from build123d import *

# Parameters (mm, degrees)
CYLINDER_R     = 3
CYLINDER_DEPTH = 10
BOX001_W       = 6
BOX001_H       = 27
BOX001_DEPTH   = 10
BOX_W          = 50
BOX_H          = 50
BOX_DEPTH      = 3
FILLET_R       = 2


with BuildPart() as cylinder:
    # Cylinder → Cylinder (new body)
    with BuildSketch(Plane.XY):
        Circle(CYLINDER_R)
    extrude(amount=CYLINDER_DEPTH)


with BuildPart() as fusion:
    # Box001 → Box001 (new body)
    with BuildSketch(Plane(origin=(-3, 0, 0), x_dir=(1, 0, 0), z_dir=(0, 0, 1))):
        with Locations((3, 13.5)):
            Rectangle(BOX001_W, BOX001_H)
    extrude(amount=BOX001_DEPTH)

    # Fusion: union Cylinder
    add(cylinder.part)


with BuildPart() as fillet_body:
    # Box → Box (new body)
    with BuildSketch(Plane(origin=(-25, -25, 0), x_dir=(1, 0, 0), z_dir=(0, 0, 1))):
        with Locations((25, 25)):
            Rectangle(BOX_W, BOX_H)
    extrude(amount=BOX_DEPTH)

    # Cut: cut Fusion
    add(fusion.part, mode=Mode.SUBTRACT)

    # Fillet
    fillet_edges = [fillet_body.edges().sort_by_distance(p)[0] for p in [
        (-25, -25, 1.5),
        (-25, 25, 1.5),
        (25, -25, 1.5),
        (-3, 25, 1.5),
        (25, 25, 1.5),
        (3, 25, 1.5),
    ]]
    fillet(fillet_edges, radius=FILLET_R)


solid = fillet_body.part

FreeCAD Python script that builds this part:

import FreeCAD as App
import Part
import Sketcher
Q = App.Units.Quantity


def edges_at(feature, points):
    """Names of the edges that pass closest to the given points."""
    edges = feature.Shape.Edges
    near = lambda p: min(range(len(edges)), key=lambda i: edges[i].distToShape(Part.Vertex(*p))[0])
    return sorted({f"Edge{near(p) + 1}" for p in points})

doc = App.newDocument("Part")
body = doc.addObject("PartDesign::Body", "Body")

sketch1 = body.newObject("Sketcher::SketchObject", "Sketch")
sketch1.AttachmentSupport = (doc.getObject("XY_Plane"), [""])
sketch1.MapMode = "FlatFace"
sketch1.addGeometry(Part.Circle(App.Vector(0, 0, 0), App.Vector(0, 0, 1), 3), False)
sketch1.addConstraint(Sketcher.Constraint("Coincident", 0, 3, -1, 1))
sketch1.addConstraint(Sketcher.Constraint("Diameter", 0, Q("6 mm")))
pad1 = body.newObject("PartDesign::Pad", "Pad")
pad1.Profile = sketch1
pad1.Length = 10
body2 = doc.addObject("PartDesign::Body", "Body001")

sketch2 = body2.newObject("Sketcher::SketchObject", "Sketch001")
sketch2.AttachmentSupport = (doc.getObject("XY_Plane001"), [""])
sketch2.MapMode = "FlatFace"
sketch2.addGeometry(Part.LineSegment(App.Vector(-3, 27, 0), App.Vector(-3, 0, 0)), False)
sketch2.addGeometry(Part.LineSegment(App.Vector(-3, 0, 0), App.Vector(3, 0, 0)), False)
sketch2.addGeometry(Part.LineSegment(App.Vector(3, 0, 0), App.Vector(3, 27, 0)), False)
sketch2.addGeometry(Part.LineSegment(App.Vector(3, 27, 0), App.Vector(-3, 27, 0)), False)
sketch2.addConstraint(Sketcher.Constraint("Coincident", 0, 2, 1, 1))
sketch2.addConstraint(Sketcher.Constraint("Coincident", 1, 2, 2, 1))
sketch2.addConstraint(Sketcher.Constraint("Coincident", 2, 2, 3, 1))
sketch2.addConstraint(Sketcher.Constraint("Coincident", 3, 2, 0, 1))
sketch2.addConstraint(Sketcher.Constraint("Vertical", 0))
sketch2.addConstraint(Sketcher.Constraint("Horizontal", 1))
sketch2.addConstraint(Sketcher.Constraint("Vertical", 2))
sketch2.addConstraint(Sketcher.Constraint("Horizontal", 3))
sketch2.addConstraint(Sketcher.Constraint("Symmetric", 0, 2, 1, 2, -1, 1))
sketch2.addConstraint(Sketcher.Constraint("DistanceX", 1, 1, 1, 2, Q("6 mm")))
sketch2.addConstraint(Sketcher.Constraint("DistanceY", 0, 2, 0, 1, Q("27 mm")))
pad2 = body2.newObject("PartDesign::Pad", "Pad001")
pad2.Profile = sketch2
pad2.Length = 10
doc.recompute()

boolean = body2.newObject("PartDesign::Boolean", "Boolean")
boolean.Type = "Fuse"
boolean.addObjects([body])
body3 = doc.addObject("PartDesign::Body", "Body002")

sketch3 = body3.newObject("Sketcher::SketchObject", "Sketch002")
sketch3.AttachmentSupport = (doc.getObject("XY_Plane002"), [""])
sketch3.MapMode = "FlatFace"
sketch3.addGeometry(Part.LineSegment(App.Vector(-25, 25, 0), App.Vector(-25, -25, 0)), False)
sketch3.addGeometry(Part.LineSegment(App.Vector(-25, -25, 0), App.Vector(25, -25, 0)), False)
sketch3.addGeometry(Part.LineSegment(App.Vector(25, -25, 0), App.Vector(25, 25, 0)), False)
sketch3.addGeometry(Part.LineSegment(App.Vector(25, 25, 0), App.Vector(-25, 25, 0)), False)
sketch3.addConstraint(Sketcher.Constraint("Coincident", 0, 2, 1, 1))
sketch3.addConstraint(Sketcher.Constraint("Coincident", 1, 2, 2, 1))
sketch3.addConstraint(Sketcher.Constraint("Coincident", 2, 2, 3, 1))
sketch3.addConstraint(Sketcher.Constraint("Coincident", 3, 2, 0, 1))
sketch3.addConstraint(Sketcher.Constraint("Vertical", 0))
sketch3.addConstraint(Sketcher.Constraint("Horizontal", 1))
sketch3.addConstraint(Sketcher.Constraint("Vertical", 2))
sketch3.addConstraint(Sketcher.Constraint("Horizontal", 3))
sketch3.addConstraint(Sketcher.Constraint("Symmetric", 0, 2, 2, 2, -1, 1))
sketch3.addConstraint(Sketcher.Constraint("Equal", 3, 0))
sketch3.addConstraint(Sketcher.Constraint("DistanceX", 1, 1, 1, 2, Q("50 mm")))
pad3 = body3.newObject("PartDesign::Pad", "Pad002")
pad3.Profile = sketch3
pad3.Length = 3
doc.recompute()

boolean2 = body3.newObject("PartDesign::Boolean", "Boolean001")
boolean2.Type = "Cut"
boolean2.addObjects([body2])
doc.recompute()

fillet = body3.newObject("PartDesign::Fillet", "Fillet")
fillet.Base = (boolean2, edges_at(boolean2, [
    (-25, -25, 1.5),
    (-25, 25, 1.5),
    (25, -25, 1.5),
    (-3, 25, 1.5),
    (25, 25, 1.5),
    (3, 25, 1.5),
]))
fillet.Radius = 2

doc.recompute()
